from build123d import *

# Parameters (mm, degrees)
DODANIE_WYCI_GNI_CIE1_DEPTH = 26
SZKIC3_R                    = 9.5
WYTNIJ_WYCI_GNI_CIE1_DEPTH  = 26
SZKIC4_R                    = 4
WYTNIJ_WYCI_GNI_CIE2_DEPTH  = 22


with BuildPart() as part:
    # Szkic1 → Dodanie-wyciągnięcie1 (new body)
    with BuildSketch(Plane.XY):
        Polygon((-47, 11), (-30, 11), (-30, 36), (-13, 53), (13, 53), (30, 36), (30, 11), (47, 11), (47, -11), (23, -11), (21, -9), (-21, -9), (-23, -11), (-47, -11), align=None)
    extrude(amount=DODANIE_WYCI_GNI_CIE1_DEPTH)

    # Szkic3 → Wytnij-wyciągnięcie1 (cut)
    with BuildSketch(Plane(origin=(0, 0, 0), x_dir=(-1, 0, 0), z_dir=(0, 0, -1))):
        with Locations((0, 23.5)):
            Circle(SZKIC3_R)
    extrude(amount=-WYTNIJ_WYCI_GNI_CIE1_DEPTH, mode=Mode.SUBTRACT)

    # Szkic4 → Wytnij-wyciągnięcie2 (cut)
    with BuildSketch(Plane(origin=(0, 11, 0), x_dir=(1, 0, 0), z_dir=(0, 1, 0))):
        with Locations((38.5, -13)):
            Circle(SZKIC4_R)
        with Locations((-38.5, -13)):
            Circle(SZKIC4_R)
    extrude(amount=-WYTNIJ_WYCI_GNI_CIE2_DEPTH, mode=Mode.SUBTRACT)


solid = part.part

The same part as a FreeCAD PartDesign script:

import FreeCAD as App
import Part
import Sketcher


def add_polygon(sketch, points):
    """Adds a closed chain of lines whose ends are joined by coincident constraints."""
    first, n = sketch.GeometryCount, len(points)
    for a, b in zip(points, points[1:] + points[:1]):
        sketch.addGeometry(Part.LineSegment(App.Vector(*a, 0), App.Vector(*b, 0)), False)
    for i in range(n):
        sketch.addConstraint(Sketcher.Constraint("Coincident", first + i, 2, first + (i + 1) % n, 1))

doc = App.newDocument("Part")
body = doc.addObject("PartDesign::Body", "Body")

# Sketch on XY plane
sketch1 = doc.addObject("Sketcher::SketchObject", "Sketch")
body.addObject(sketch1)
sketch1.AttachmentSupport = (doc.XY_Plane, [""])
sketch1.MapMode = "FlatFace"
add_polygon(sketch1, [(-30, 11), (-47, 11), (-47, -11), (-23, -11), (-21, -9), (21, -9), (23, -11), (47, -11), (47, 11), (30, 11), (30, 36), (13, 53), (-13, 53), (-30, 36)])  # lines 0-13
sketch1.addConstraint([
    Sketcher.Constraint("Horizontal", 0),
    Sketcher.Constraint("Vertical", 1),
    Sketcher.Constraint("Horizontal", 2),
    Sketcher.Constraint("Horizontal", 4),
    Sketcher.Constraint("Horizontal", 6),
    Sketcher.Constraint("Vertical", 7),
    Sketcher.Constraint("Horizontal", 8),
    Sketcher.Constraint("Vertical", 9),
    Sketcher.Constraint("Horizontal", 11),
    Sketcher.Constraint("Vertical", 13),
    Sketcher.Constraint("Symmetric", 0, 2, 6, 2, -1, 1),
    Sketcher.Constraint("Symmetric", 2, 2, 5, 2, -2),
    Sketcher.Constraint("Symmetric", 9, 2, 12, 2, -2),
    Sketcher.Constraint("Perpendicular", 3, 5),
    Sketcher.Constraint("Parallel", 5, 10),
    Sketcher.Constraint("Perpendicular", 10, 12),
    Sketcher.Constraint("Horizontal", 0, 2, 7, 2),
    Sketcher.Constraint("Equal", 3, 5),
    Sketcher.Constraint("DistanceX", 0, 2, 0, 1, 17.0),
    Sketcher.Constraint("DistanceX", 2, 1, 2, 2, 24.0),
    Sketcher.Constraint("DistanceX", 4, 1, 4, 2, 42.0),
    Sketcher.Constraint("DistanceX", 11, 2, 11, 1, 26.0),
    Sketcher.Constraint("DistanceY", 1, 2, 1, 1, 22.0),
    Sketcher.Constraint("DistanceY", 9, 1, 9, 2, 25.0),
    Sketcher.Constraint("DistanceX", 0, 2, -1, 1, 47.0),
])
pad1 = doc.addObject("PartDesign::Pad", "Pad")
body.addObject(pad1)
pad1.Profile = sketch1
pad1.Length = 26

# Sketch on XY plane
sketch2 = doc.addObject("Sketcher::SketchObject", "Sketch001")
body.addObject(sketch2)
sketch2.AttachmentSupport = (doc.XY_Plane, [""])
sketch2.MapMode = "FlatFace"
sketch2.addGeometry(Part.Circle(App.Vector(0, 24, 0), App.Vector(0, 0, 1), 10), False)
sketch2.addConstraint([
    Sketcher.Constraint("PointOnObject", 0, 3, -2),
    Sketcher.Constraint("Diameter", 0, 19.0),
    Sketcher.Constraint("DistanceY", -1, 1, 0, 3, 23.5),
])
pocket1 = doc.addObject("PartDesign::Pocket", "Pocket")
body.addObject(pocket1)
pocket1.Profile = sketch2
pocket1.Length = 26
pocket1.Reversed = True

# Sketch on XZ plane
sketch3 = doc.addObject("Sketcher::SketchObject", "Sketch002")
body.addObject(sketch3)
sketch3.AttachmentSupport = (doc.XZ_Plane, [""])
sketch3.MapMode = "FlatFace"
sketch3.AttachmentOffset = App.Placement(App.Vector(0, 0, -11), App.Rotation())
sketch3.addGeometry([
    Part.Circle(App.Vector(38.5, 13, 0), App.Vector(0, 0, 1), 4),
    Part.Circle(App.Vector(-38.5, 13, 0), App.Vector(0, 0, 1), 4),
], False)
sketch3.addConstraint([
    Sketcher.Constraint("Equal", 0, 1),
    Sketcher.Constraint("Symmetric", 0, 3, 1, 3, -2),
    Sketcher.Constraint("Diameter", 0, 8.0),
    Sketcher.Constraint("DistanceY", -1, 1, 0, 3, 13.0),
    Sketcher.Constraint("DistanceX", 1, 3, 0, 3, 77.0),
])
pocket2 = doc.addObject("PartDesign::Pocket", "Pocket001")
body.addObject(pocket2)
pocket2.Profile = sketch3
pocket2.Length = 22
pocket2.Reversed = True

doc.recompute()
